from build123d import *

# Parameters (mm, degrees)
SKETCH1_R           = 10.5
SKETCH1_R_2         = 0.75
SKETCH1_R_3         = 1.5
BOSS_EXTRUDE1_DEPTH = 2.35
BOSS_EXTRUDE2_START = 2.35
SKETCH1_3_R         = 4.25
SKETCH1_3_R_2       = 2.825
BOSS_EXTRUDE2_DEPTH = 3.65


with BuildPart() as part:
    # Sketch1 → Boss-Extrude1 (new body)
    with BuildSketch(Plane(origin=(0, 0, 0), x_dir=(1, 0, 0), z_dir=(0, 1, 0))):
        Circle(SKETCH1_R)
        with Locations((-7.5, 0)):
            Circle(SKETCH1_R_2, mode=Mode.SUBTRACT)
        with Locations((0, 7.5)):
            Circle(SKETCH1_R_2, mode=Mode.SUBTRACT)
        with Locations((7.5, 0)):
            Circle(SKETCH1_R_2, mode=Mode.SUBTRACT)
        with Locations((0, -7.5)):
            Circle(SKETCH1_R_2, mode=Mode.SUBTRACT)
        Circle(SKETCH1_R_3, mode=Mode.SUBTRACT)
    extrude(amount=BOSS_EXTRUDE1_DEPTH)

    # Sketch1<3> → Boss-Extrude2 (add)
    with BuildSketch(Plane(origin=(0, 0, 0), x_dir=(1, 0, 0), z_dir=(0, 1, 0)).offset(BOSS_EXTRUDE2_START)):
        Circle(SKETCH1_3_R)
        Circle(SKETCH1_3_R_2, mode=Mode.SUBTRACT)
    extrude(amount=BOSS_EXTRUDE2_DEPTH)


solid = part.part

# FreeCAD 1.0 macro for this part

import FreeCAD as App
import Part
import Sketcher
from FreeCAD import Vector
Q = App.Units.Quantity

doc = App.newDocument("Part")
body = doc.addObject("PartDesign::Body", "Body")

# Sketch on XZ plane
sketch1 = body.newObject("Sketcher::SketchObject", "Sketch")
sketch1.AttachmentSupport = (doc.getObject("XZ_Plane"), [""])
sketch1.MapMode = "FlatFace"
sketch1.addGeometry([
    Part.Circle(Vector(0, 0, 0), Vector(0, 0, 1), 10.5),  # 0
    Part.Circle(Vector(0, 7.5, 0), Vector(0, 0, 1), 0.75),  # 1
    Part.Circle(Vector(-7.5, 0, 0), Vector(0, 0, 1), 0.75),  # 2
    Part.Circle(Vector(0, 0, 0), Vector(0, 0, 1), 1.5),  # 3
    Part.Circle(Vector(7.5, 0, 0), Vector(0, 0, 1), 0.75),  # 4
    Part.Circle(Vector(0, -7.5, 0), Vector(0, 0, 1), 0.75),  # 5
], False)
sketch1.addConstraint([
    Sketcher.Constraint("Coincident", 0, 3, -1, 1),
    Sketcher.Constraint("Coincident", 3, 3, -1, 1),
    Sketcher.Constraint("Equal", 1, 2),
    Sketcher.Constraint("Equal", 2, 4),
    Sketcher.Constraint("Equal", 4, 5),
    Sketcher.Constraint("Symmetric", 2, 3, 4, 3, -1, 1),
    Sketcher.Constraint("Symmetric", 1, 3, 5, 3, -1, 1),
    Sketcher.Constraint("PointOnObject", 1, 3, -2),
    Sketcher.Constraint("PointOnObject", 2, 3, -1),
    Sketcher.Constraint("Diameter", 0, Q("21 mm")),
    Sketcher.Constraint("Diameter", 3, Q("3 mm")),
    Sketcher.Constraint("Diameter", 1, Q("1.5 mm")),
    Sketcher.Constraint("DistanceX", 2, 3, 4, 3, Q("15 mm")),
    Sketcher.Constraint("DistanceY", 5, 3, 1, 3, Q("15 mm")),
])
pad1 = body.newObject("PartDesign::Pad", "Pad")
pad1.Profile = sketch1
pad1.Length = 2.35
pad1.Reversed = True

# Sketch on XZ plane
sketch2 = body.newObject("Sketcher::SketchObject", "Sketch001")
sketch2.AttachmentSupport = (doc.getObject("XZ_Plane"), [""])
sketch2.MapMode = "FlatFace"
sketch2.AttachmentOffset = App.Placement(Vector(0, 0, -2.35), App.Rotation())
sketch2.addGeometry([
    Part.Circle(Vector(0, 0, 0), Vector(0, 0, 1), 4.25),
    Part.Circle(Vector(0, 0, 0), Vector(0, 0, 1), 2.825),
], False)
sketch2.addConstraint([
    Sketcher.Constraint("Coincident", 0, 3, -1, 1),
    Sketcher.Constraint("Coincident", 1, 3, -1, 1),
    Sketcher.Constraint("Diameter", 0, Q("8.5 mm")),
    Sketcher.Constraint("Diameter", 1, Q("5.65 mm")),
])
pad2 = body.newObject("PartDesign::Pad", "Pad001")
pad2.Profile = sketch2
pad2.Length = 3.65
pad2.Reversed = True

doc.recompute()
